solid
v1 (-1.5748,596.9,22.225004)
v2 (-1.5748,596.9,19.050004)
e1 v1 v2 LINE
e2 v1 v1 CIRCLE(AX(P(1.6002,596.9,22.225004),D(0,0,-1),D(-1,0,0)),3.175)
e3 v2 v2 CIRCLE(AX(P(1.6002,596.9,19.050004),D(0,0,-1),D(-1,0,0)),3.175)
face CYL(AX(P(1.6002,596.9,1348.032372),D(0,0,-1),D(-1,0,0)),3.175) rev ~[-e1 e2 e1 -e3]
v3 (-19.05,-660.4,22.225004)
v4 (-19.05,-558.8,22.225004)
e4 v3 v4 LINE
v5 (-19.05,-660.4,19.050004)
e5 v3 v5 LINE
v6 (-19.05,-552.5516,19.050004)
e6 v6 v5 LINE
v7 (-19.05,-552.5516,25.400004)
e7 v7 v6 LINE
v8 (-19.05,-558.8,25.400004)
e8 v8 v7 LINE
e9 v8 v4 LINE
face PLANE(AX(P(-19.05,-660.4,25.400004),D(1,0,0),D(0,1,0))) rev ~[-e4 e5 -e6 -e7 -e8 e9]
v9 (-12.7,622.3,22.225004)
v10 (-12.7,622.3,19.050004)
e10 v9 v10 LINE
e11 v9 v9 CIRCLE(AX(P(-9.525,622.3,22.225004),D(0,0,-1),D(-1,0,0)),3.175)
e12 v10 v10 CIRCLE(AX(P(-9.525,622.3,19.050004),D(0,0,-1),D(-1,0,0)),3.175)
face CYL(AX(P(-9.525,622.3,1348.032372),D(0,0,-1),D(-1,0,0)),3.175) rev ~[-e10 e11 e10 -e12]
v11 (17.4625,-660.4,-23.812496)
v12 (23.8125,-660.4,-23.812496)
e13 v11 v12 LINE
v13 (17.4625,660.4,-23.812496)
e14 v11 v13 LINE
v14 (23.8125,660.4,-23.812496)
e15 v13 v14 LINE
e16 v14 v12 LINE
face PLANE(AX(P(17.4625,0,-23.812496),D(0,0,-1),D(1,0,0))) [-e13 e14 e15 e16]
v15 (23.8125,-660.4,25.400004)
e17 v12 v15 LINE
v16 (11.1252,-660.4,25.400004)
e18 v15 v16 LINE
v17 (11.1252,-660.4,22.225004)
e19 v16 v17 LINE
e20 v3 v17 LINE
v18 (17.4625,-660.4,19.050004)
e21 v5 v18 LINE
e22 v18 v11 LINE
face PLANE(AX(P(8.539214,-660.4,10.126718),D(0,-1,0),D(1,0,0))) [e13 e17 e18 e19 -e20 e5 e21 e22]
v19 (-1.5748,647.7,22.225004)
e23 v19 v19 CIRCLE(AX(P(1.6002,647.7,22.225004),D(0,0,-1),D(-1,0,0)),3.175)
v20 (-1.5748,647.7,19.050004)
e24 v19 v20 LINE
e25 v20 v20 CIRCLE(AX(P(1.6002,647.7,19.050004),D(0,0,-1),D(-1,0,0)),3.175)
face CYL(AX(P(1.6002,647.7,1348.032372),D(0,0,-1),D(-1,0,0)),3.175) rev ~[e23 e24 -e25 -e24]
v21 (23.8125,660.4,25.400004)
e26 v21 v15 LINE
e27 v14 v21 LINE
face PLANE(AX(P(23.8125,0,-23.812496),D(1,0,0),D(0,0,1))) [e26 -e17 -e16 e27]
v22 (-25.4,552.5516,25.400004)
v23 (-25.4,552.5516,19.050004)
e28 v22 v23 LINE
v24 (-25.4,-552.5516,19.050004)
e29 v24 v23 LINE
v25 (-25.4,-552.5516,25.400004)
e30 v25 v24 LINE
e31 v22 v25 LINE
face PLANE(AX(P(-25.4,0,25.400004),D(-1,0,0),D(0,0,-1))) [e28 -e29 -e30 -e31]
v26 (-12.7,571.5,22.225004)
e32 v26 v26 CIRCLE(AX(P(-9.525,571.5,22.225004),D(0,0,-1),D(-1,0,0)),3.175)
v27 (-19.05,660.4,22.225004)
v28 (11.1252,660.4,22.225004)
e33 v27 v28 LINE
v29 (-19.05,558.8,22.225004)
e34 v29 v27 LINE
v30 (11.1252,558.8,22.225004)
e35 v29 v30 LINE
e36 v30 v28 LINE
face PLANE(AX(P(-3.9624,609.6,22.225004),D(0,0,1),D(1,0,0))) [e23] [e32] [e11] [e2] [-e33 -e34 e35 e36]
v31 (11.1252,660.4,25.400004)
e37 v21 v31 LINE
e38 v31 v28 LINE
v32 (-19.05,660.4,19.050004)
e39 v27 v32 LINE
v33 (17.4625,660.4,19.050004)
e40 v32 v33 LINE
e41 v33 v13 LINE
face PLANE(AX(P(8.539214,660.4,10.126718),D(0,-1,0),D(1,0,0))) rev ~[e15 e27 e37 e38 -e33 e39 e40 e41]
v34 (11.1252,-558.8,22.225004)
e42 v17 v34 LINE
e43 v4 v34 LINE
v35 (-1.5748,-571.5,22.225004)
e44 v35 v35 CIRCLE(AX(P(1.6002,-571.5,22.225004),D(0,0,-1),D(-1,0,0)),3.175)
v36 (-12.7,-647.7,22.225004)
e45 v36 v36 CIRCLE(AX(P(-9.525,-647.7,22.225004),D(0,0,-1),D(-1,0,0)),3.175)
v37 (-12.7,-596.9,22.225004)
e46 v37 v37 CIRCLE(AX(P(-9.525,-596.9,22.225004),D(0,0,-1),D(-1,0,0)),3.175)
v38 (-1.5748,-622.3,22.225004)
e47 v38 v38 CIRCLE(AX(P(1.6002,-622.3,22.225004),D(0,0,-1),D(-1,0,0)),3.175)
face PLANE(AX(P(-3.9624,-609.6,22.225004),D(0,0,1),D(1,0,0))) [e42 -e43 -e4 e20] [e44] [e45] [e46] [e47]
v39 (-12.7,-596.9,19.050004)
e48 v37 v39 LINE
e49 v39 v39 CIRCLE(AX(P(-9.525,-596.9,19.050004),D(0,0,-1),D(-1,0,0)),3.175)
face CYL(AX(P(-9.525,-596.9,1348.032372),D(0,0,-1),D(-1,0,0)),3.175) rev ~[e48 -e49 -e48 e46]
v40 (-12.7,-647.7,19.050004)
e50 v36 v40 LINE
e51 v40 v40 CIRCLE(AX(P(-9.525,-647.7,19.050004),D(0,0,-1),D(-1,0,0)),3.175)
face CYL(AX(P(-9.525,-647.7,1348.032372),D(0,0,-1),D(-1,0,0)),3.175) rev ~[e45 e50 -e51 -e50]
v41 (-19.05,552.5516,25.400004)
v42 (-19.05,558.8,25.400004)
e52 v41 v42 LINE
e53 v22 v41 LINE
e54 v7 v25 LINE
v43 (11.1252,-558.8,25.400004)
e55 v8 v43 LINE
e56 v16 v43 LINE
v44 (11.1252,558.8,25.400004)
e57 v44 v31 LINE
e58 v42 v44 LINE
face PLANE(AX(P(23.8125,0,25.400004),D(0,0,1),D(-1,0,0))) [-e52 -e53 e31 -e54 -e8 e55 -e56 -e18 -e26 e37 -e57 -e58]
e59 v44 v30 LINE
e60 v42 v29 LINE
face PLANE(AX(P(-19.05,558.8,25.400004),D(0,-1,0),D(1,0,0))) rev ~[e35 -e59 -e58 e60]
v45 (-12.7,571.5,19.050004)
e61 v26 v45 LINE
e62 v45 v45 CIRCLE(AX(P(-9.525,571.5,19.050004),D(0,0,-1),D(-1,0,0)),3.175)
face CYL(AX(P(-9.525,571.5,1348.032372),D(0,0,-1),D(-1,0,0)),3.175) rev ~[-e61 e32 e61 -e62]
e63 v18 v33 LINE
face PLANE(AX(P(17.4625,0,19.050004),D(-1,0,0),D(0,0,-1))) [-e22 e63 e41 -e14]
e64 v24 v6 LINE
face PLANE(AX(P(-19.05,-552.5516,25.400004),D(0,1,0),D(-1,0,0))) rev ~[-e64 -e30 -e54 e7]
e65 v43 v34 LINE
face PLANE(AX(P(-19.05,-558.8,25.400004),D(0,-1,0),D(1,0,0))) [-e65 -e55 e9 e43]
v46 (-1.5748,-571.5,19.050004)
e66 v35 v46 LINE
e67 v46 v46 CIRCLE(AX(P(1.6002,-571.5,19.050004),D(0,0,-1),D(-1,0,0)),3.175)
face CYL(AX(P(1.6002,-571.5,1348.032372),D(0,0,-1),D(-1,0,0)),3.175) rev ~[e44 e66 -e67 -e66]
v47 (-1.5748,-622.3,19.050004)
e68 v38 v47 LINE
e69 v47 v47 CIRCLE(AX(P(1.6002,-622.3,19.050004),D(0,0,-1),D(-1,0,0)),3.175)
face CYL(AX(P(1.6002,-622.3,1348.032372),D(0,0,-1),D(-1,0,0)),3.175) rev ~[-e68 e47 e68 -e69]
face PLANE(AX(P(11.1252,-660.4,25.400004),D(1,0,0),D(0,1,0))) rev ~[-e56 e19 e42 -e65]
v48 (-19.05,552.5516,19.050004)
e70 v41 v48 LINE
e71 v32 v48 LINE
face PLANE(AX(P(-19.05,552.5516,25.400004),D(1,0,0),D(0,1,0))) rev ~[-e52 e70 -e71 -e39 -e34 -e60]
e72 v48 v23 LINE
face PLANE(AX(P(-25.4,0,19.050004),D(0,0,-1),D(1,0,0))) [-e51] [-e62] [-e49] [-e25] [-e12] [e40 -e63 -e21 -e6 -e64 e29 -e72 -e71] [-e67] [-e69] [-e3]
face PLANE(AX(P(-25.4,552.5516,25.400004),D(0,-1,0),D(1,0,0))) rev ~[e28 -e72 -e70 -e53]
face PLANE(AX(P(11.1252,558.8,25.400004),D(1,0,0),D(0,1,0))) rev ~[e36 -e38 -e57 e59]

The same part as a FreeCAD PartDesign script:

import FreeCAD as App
import Part
import Sketcher
from FreeCAD import Vector
Q = App.Units.Quantity


def add_polygon(sketch, points):
    """Adds a closed chain of lines whose ends are joined by coincident constraints."""
    first, n = sketch.GeometryCount, len(points)
    for a, b in zip(points, points[1:] + points[:1]):
        sketch.addGeometry(Part.LineSegment(App.Vector(*a, 0), App.Vector(*b, 0)), False)
    for i in range(n):
        sketch.addConstraint(Sketcher.Constraint("Coincident", first + i, 2, first + (i + 1) % n, 1))

doc = App.newDocument("Part")
params = doc.addObject("Spreadsheet::Sheet", "Params")
for row, (alias, value) in enumerate([
    ("sketch1_width", "0.25 in"),
    ("sketch1_width2", "1.9375 in"),
    ("pad1_length", "52 in"),
    ("sketch2_diameter", "0.25 in"),
    ("sketch2_height", "4 in"),
    ("sketch2_width", "1.188 in"),
    ("pocket1_length", "0.125 in"),
    ("sketch3_diameter", "0.25 in"),
    ("hole_diameter", "0.25 in"),
    ("sketch4_width", "0.25 in"),
    ("sketch4_height", "4.246 in"),
], start=1):
    params.set(f"A{row}", alias)
    params.set(f"B{row}", "=" + value)
    params.setAlias(f"B{row}", alias)

body = doc.addObject("PartDesign::Body", "Body")

# Sketch on XZ plane
sketch1 = doc.addObject("Sketcher::SketchObject", "Sketch")
body.addObject(sketch1)
sketch1.AttachmentSupport = (doc.XZ_Plane, [""])
sketch1.MapMode = "FlatFace"
add_polygon(sketch1, [(17.4625, -23.812496), (23.8125, -23.812496), (23.8125, 25.400004), (-25.4, 25.400004), (-25.4, 19.050004), (17.4625, 19.050004)])  # lines 0-5
sketch1.addConstraint([
    Sketcher.Constraint("Horizontal", 0),
    Sketcher.Constraint("Vertical", 1),
    Sketcher.Constraint("Horizontal", 2),
    Sketcher.Constraint("Vertical", 3),
    Sketcher.Constraint("Horizontal", 4),
    Sketcher.Constraint("Vertical", 5),
    Sketcher.Constraint("Equal", 2, 1),
    Sketcher.Constraint("Equal", 0, 3),
    Sketcher.Constraint("DistanceY", -1, 1, 1, 2, Q("1.0000002 in")),
    Sketcher.Constraint("DistanceX", 2, 2, -1, 1, Q("1 in")),
    Sketcher.Constraint("DistanceX", 0, 1, 0, 2, Q("0.25 in")),
    Sketcher.Constraint("DistanceX", 2, 2, 2, 1, Q("1.9375 in")),
])
sketch1.setExpression("Constraints[16]", "Params.sketch1_width")
sketch1.setExpression("Constraints[17]", "Params.sketch1_width2")
pad1 = doc.addObject("PartDesign::Pad", "Pad")
body.addObject(pad1)
pad1.Profile = sketch1
pad1.setExpression("Length", "Params.pad1_length")
pad1.Midplane = True

# Sketch on XY plane
sketch2 = doc.addObject("Sketcher::SketchObject", "Sketch001")
body.addObject(sketch2)
sketch2.AttachmentSupport = (doc.XY_Plane, [""])
sketch2.MapMode = "FlatFace"
sketch2.AttachmentOffset = App.Placement(Vector(0, 0, 1.0000002 * 25.4), App.Rotation())
add_polygon(sketch2, [(-19.05, -558.8), (-19.05, -660.4), (11.1252, -660.4), (11.1252, -558.8)])  # lines 0-3
sketch2.addGeometry(Part.Circle(Vector(-9.525, -647.7, 0), Vector(0, 0, 1), 3.175), False)  # 4
sketch2.addGeometry(Part.Circle(Vector(1.6002, -622.3, 0), Vector(0, 0, 1), 3.175), False)  # 5
sketch2.addGeometry(Part.Circle(Vector(-9.525, -596.9, 0), Vector(0, 0, 1), 3.175), False)  # 6
sketch2.addGeometry(Part.Circle(Vector(1.6002, -571.5, 0), Vector(0, 0, 1), 3.175), False)  # 7
add_polygon(sketch2, [(-19.05, 660.4), (-19.05, 558.8), (11.1252, 558.8), (11.1252, 660.4)])  # lines 8-11
sketch2.addGeometry(Part.Circle(Vector(-9.525, 571.5, 0), Vector(0, 0, 1), 3.175), False)  # 12
sketch2.addGeometry(Part.Circle(Vector(1.6002, 596.9, 0), Vector(0, 0, 1), 3.175), False)  # 13
sketch2.addGeometry(Part.Circle(Vector(-9.525, 622.3, 0), Vector(0, 0, 1), 3.175), False)  # 14
sketch2.addGeometry(Part.Circle(Vector(1.6002, 647.7, 0), Vector(0, 0, 1), 3.175), False)  # 15
sketch2.addConstraint([
    Sketcher.Constraint("Vertical", 0),
    Sketcher.Constraint("Horizontal", 1),
    Sketcher.Constraint("Vertical", 2),
    Sketcher.Constraint("Horizontal", 3),
    Sketcher.Constraint("Vertical", 8),
    Sketcher.Constraint("Horizontal", 9),
    Sketcher.Constraint("Vertical", 10),
    Sketcher.Constraint("Horizontal", 11),
    Sketcher.Constraint("Equal", 4, 5),
    Sketcher.Constraint("Equal", 5, 6),
    Sketcher.Constraint("Equal", 6, 7),
    Sketcher.Constraint("Equal", 7, 12),
    Sketcher.Constraint("Equal", 12, 13),
    Sketcher.Constraint("Equal", 13, 14),
    Sketcher.Constraint("Equal", 14, 15),
    Sketcher.Constraint("Symmetric", 3, 2, 8, 2, -1),
    Sketcher.Constraint("Symmetric", 1, 2, 10, 2, -1),
    Sketcher.Constraint("Vertical", 4, 3, 6, 3),
    Sketcher.Constraint("Vertical", 5, 3, 7, 3),
    Sketcher.Constraint("Vertical", 6, 3, 12, 3),
    Sketcher.Constraint("Vertical", 7, 3, 13, 3),
    Sketcher.Constraint("Vertical", 12, 3, 14, 3),
    Sketcher.Constraint("Vertical", 13, 3, 15, 3),
    Sketcher.Constraint("Diameter", 4, Q("0.25 in")),
    Sketcher.Constraint("DistanceY", 0, 2, 0, 1, Q("4 in")),
    Sketcher.Constraint("DistanceY", 0, 2, -1, 1, Q("26 in")),
    Sketcher.Constraint("DistanceY", 4, 3, 5, 3, Q("1 in")),
    Sketcher.Constraint("DistanceY", 5, 3, 6, 3, Q("1 in")),
    Sketcher.Constraint("DistanceY", 6, 3, 7, 3, Q("1 in")),
    Sketcher.Constraint("DistanceY", 7, 3, 12, 3, Q("45 in")),
    Sketcher.Constraint("DistanceY", 12, 3, 13, 3, Q("1 in")),
    Sketcher.Constraint("DistanceY", 13, 3, 14, 3, Q("1 in")),
    Sketcher.Constraint("DistanceY", 14, 3, 15, 3, Q("1 in")),
    Sketcher.Constraint("DistanceY", 4, 3, -1, 1, Q("25.5 in")),
    Sketcher.Constraint("DistanceX", 1, 1, 1, 2, Q("1.188 in")),
    Sketcher.Constraint("DistanceX", 0, 2, -1, 1, Q("0.75 in")),
    Sketcher.Constraint("DistanceX", 4, 3, -1, 1, Q("0.375 in")),
    Sketcher.Constraint("DistanceX", -1, 1, 5, 3, Q("0.063 in")),
])
sketch2.setExpression("Constraints[31]", "Params.sketch2_diameter")
sketch2.setExpression("Constraints[32]", "Params.sketch2_height")
sketch2.setExpression("Constraints[42]", "Params.sketch2_width")
pocket1 = doc.addObject("PartDesign::Pocket", "Pocket")
body.addObject(pocket1)
pocket1.Profile = sketch2
pocket1.setExpression("Length", "Params.pocket1_length")

# Sketch on XY plane
sketch3 = doc.addObject("Sketcher::SketchObject", "Sketch002")
body.addObject(sketch3)
sketch3.AttachmentSupport = (doc.XY_Plane, [""])
sketch3.MapMode = "FlatFace"
sketch3.AttachmentOffset = App.Placement(Vector(0, 0, 1.0000002 * 25.4), App.Rotation())
sketch3.addGeometry([
    Part.Circle(Vector(1.6002, -571.5, 0), Vector(0, 0, 1), 3.175),  # 0
    Part.Circle(Vector(-9.525, -596.9, 0), Vector(0, 0, 1), 3.175),  # 1
    Part.Circle(Vector(1.6002, -622.3, 0), Vector(0, 0, 1), 3.175),  # 2
    Part.Circle(Vector(-9.525, -647.7, 0), Vector(0, 0, 1), 3.175),  # 3
    Part.Circle(Vector(1.6002, 647.7, 0), Vector(0, 0, 1), 3.175),  # 4
    Part.Circle(Vector(-9.525, 622.3, 0), Vector(0, 0, 1), 3.175),  # 5
    Part.Circle(Vector(1.6002, 596.9, 0), Vector(0, 0, 1), 3.175),  # 6
    Part.Circle(Vector(-9.525, 571.5, 0), Vector(0, 0, 1), 3.175),  # 7
], False)
sketch3.addConstraint([
    Sketcher.Constraint("Equal", 0, 1),
    Sketcher.Constraint("Equal", 1, 2),
    Sketcher.Constraint("Equal", 2, 3),
    Sketcher.Constraint("Equal", 3, 4),
    Sketcher.Constraint("Equal", 4, 5),
    Sketcher.Constraint("Equal", 5, 6),
    Sketcher.Constraint("Equal", 6, 7),
    Sketcher.Constraint("Vertical", 0, 3, 2, 3),
    Sketcher.Constraint("Vertical", 1, 3, 3, 3),
    Sketcher.Constraint("Vertical", 2, 3, 4, 3),
    Sketcher.Constraint("Vertical", 3, 3, 5, 3),
    Sketcher.Constraint("Vertical", 4, 3, 6, 3),
    Sketcher.Constraint("Vertical", 5, 3, 7, 3),
    Sketcher.Constraint("Diameter", 0, Q("0.25 in")),
    Sketcher.Constraint("DistanceY", 1, 3, 0, 3, Q("1 in")),
    Sketcher.Constraint("DistanceY", 2, 3, 1, 3, Q("1 in")),
    Sketcher.Constraint("DistanceY", 3, 3, 2, 3, Q("1 in")),
    Sketcher.Constraint("DistanceY", 0, 3, 4, 3, Q("48 in")),
    Sketcher.Constraint("DistanceY", 5, 3, 4, 3, Q("1 in")),
    Sketcher.Constraint("DistanceY", 6, 3, 5, 3, Q("1 in")),
    Sketcher.Constraint("DistanceY", 7, 3, 6, 3, Q("1 in")),
    Sketcher.Constraint("DistanceY", 0, 3, -1, 1, Q("22.5 in")),
    Sketcher.Constraint("DistanceX", -1, 1, 0, 3, Q("0.063 in")),
    Sketcher.Constraint("DistanceX", 1, 3, -1, 1, Q("0.375 in")),
])
sketch3.setExpression("Constraints[13]", "Params.sketch3_diameter")
doc.recompute()
hole = doc.addObject("PartDesign::Hole", "Hole")
body.addObject(hole)
hole.Profile = sketch3
hole.ThreadType = "None"
hole.setExpression("Diameter", "Params.hole_diameter")
hole.DepthType = "ThroughAll"

# Sketch on XY plane
sketch4 = doc.addObject("Sketcher::SketchObject", "Sketch003")
body.addObject(sketch4)
sketch4.AttachmentSupport = (doc.XY_Plane, [""])
sketch4.MapMode = "FlatFace"
sketch4.AttachmentOffset = App.Placement(Vector(0, 0, 1.0000002 * 25.4), App.Rotation())
add_polygon(sketch4, [(-25.4, 660.4), (-25.4, 552.5516), (-19.05, 552.5516), (-19.05, 660.4)])  # lines 0-3
add_polygon(sketch4, [(-19.05, -552.5516), (-25.4, -552.5516), (-25.4, -660.4), (-19.05, -660.4)])  # lines 4-7
sketch4.addConstraint([
    Sketcher.Constraint("Vertical", 0),
    Sketcher.Constraint("Horizontal", 1),
    Sketcher.Constraint("Vertical", 2),
    Sketcher.Constraint("Horizontal", 3),
    Sketcher.Constraint("Horizontal", 4),
    Sketcher.Constraint("Vertical", 5),
    Sketcher.Constraint("Horizontal", 6),
    Sketcher.Constraint("Vertical", 7),
    Sketcher.Constraint("Symmetric", 0, 2, 4, 2, -1),
    Sketcher.Constraint("Symmetric", 2, 2, 6, 2, -1),
    Sketcher.Constraint("DistanceX", 0, 2, -1, 1, Q("1 in")),
    Sketcher.Constraint("DistanceY", -1, 1, 2, 2, Q("26 in")),
    Sketcher.Constraint("DistanceX", 1, 1, 1, 2, Q("0.25 in")),
    Sketcher.Constraint("DistanceY", 0, 2, 0, 1, Q("4.246 in")),
])
sketch4.setExpression("Constraints[20]", "Params.sketch4_width")
sketch4.setExpression("Constraints[21]", "Params.sketch4_height")
pocket2 = doc.addObject("PartDesign::Pocket", "Pocket001")
body.addObject(pocket2)
pocket2.Profile = sketch4
pocket2.Type = "ThroughAll"

doc.recompute()
